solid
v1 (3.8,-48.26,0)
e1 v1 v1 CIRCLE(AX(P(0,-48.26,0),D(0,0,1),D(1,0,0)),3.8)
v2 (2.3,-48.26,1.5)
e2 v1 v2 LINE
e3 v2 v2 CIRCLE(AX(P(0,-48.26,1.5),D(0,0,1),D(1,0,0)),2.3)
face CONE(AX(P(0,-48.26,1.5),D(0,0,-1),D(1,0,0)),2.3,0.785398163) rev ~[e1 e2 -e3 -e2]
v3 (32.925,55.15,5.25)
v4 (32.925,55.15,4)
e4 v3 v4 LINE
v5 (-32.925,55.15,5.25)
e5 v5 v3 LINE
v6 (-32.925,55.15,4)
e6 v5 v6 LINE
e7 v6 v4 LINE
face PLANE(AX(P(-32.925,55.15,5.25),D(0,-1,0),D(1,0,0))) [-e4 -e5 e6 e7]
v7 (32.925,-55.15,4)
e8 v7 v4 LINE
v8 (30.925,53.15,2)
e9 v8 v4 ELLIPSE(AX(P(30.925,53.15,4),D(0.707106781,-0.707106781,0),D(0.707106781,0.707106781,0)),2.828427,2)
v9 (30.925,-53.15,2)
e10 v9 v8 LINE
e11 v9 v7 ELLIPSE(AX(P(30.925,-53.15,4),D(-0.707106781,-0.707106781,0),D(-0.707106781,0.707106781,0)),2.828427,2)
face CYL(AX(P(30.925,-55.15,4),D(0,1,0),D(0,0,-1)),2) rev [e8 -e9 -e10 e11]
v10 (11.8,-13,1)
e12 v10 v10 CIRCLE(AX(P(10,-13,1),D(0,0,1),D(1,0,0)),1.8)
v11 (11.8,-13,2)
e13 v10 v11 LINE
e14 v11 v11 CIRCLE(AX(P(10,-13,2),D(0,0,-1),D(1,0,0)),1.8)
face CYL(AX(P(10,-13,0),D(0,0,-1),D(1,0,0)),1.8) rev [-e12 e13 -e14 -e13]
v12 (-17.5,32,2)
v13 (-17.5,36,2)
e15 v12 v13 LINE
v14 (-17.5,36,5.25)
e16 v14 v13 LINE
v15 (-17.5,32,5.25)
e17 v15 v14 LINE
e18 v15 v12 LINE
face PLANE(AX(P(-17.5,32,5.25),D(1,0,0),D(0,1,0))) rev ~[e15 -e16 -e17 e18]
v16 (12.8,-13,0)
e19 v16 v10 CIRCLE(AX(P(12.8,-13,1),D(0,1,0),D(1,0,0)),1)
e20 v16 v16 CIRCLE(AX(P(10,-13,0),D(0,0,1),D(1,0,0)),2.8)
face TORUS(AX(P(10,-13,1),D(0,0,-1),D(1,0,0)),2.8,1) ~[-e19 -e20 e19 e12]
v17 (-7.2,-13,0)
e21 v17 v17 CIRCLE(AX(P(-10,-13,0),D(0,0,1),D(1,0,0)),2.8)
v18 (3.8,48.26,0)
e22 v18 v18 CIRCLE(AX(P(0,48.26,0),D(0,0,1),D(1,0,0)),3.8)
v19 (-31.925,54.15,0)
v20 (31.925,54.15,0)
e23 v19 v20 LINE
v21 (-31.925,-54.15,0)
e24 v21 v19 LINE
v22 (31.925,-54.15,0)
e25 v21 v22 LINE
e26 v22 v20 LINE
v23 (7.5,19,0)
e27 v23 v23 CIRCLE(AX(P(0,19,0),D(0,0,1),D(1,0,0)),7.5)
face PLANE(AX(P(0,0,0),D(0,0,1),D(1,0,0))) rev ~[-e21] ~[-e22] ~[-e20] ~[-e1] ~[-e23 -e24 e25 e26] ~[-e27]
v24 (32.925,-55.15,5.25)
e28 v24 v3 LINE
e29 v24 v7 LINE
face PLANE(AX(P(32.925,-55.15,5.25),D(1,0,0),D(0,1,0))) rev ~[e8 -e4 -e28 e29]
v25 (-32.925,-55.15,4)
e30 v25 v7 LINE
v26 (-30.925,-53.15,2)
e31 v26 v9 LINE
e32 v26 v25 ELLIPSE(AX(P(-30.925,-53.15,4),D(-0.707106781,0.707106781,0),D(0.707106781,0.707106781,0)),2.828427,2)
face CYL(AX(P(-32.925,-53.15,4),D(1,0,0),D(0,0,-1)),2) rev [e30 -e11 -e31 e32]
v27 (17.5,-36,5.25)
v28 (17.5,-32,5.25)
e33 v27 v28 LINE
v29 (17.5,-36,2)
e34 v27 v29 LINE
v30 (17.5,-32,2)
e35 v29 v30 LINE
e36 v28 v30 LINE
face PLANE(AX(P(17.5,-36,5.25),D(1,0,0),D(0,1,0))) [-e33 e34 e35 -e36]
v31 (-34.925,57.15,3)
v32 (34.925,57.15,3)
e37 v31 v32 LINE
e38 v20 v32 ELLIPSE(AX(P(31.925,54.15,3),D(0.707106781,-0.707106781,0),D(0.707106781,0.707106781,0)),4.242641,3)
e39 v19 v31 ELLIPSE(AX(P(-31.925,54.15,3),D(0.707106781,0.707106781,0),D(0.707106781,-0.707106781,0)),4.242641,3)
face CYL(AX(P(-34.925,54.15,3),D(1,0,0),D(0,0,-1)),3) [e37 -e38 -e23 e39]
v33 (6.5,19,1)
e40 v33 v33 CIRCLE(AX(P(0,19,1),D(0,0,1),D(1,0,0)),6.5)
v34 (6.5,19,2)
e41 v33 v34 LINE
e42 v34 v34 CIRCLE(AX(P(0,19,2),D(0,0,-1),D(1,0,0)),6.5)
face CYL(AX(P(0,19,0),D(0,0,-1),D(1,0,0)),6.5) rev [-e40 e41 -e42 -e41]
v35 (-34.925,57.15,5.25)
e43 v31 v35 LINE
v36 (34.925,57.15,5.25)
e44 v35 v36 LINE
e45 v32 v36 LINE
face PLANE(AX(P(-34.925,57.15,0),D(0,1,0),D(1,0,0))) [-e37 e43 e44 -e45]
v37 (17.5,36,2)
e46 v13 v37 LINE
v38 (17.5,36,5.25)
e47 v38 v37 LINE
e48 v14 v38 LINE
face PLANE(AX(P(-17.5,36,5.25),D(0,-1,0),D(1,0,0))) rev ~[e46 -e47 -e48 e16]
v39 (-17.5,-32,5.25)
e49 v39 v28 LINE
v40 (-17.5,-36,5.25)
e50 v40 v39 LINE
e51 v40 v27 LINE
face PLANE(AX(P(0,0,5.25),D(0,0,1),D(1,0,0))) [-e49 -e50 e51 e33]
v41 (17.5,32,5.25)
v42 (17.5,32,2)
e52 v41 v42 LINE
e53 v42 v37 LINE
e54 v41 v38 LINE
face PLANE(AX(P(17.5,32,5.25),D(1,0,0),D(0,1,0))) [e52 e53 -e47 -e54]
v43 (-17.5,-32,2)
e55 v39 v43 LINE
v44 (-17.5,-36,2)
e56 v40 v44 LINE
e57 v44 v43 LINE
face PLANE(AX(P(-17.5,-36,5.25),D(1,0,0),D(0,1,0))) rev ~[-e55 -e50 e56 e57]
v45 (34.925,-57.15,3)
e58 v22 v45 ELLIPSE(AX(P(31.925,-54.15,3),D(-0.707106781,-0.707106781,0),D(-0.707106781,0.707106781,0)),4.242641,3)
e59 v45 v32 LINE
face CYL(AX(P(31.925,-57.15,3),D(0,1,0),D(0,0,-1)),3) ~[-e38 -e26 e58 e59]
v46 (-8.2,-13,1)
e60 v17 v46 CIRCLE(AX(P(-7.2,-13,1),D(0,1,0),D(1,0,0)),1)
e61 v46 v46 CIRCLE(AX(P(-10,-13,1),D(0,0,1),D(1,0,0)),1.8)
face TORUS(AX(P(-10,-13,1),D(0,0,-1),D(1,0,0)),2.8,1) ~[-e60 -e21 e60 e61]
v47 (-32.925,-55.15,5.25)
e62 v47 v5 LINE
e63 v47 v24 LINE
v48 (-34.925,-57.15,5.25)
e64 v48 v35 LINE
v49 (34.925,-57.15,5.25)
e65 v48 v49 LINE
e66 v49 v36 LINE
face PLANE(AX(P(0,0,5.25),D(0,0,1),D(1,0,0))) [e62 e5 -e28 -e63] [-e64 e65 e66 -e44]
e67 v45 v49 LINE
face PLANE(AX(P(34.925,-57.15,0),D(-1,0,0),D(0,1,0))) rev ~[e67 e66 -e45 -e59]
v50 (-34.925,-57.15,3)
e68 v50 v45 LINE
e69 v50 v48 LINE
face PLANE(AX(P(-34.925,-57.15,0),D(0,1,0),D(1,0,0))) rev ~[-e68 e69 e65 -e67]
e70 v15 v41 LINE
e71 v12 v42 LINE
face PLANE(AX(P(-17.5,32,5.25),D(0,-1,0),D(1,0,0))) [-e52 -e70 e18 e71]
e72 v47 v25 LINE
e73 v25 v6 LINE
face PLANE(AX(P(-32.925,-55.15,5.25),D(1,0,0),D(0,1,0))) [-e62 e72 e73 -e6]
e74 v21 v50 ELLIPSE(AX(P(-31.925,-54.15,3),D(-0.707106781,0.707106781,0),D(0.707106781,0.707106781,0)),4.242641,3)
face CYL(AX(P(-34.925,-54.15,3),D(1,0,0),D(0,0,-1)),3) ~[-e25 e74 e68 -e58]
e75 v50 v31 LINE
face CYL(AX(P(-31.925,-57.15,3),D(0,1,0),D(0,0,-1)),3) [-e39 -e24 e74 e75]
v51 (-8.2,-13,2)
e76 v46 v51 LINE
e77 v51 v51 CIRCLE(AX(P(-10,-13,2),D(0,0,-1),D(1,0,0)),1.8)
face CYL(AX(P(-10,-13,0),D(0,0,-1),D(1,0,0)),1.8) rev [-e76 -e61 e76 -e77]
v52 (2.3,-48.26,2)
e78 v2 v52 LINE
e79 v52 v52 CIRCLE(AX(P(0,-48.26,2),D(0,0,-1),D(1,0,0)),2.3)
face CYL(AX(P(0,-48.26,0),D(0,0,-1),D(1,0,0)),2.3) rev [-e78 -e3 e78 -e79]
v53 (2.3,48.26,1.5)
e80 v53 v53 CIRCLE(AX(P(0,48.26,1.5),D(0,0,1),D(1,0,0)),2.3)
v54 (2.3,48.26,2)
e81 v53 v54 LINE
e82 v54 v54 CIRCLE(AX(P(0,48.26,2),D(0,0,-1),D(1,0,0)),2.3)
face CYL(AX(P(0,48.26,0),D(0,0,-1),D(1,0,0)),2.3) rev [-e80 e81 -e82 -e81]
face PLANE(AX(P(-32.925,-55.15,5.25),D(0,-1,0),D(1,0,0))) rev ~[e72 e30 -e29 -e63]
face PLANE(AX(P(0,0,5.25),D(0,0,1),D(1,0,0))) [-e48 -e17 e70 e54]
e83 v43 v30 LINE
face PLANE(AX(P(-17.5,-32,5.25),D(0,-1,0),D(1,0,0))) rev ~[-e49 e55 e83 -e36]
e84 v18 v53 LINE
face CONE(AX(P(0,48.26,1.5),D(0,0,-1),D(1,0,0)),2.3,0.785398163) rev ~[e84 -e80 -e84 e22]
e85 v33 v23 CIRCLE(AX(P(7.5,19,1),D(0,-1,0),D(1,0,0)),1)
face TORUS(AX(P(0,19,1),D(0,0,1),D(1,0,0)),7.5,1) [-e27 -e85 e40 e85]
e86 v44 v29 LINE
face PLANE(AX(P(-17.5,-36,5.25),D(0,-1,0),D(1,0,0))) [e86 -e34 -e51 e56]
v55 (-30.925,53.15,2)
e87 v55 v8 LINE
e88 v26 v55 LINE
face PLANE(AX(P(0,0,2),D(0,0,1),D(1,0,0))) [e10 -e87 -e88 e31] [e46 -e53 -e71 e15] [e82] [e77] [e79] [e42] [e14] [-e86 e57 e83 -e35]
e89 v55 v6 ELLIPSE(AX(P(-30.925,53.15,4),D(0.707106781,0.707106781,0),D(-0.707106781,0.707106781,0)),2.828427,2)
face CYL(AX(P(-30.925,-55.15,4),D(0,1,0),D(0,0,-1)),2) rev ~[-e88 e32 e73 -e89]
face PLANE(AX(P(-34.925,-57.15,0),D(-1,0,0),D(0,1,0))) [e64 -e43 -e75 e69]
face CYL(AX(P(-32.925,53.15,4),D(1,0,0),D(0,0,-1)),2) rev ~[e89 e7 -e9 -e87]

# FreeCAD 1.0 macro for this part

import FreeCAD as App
import Part
import Sketcher
from FreeCAD import Vector
Q = App.Units.Quantity


def edges_at(feature, points):
    """Names of the edges that pass closest to the given points."""
    edges = feature.Shape.Edges
    near = lambda p: min(range(len(edges)), key=lambda i: edges[i].distToShape(Part.Vertex(*p))[0])
    return sorted({f"Edge{near(p) + 1}" for p in points})


def add_polygon(sketch, points):
    """Adds a closed chain of lines whose ends are joined by coincident constraints."""
    first, n = sketch.GeometryCount, len(points)
    for a, b in zip(points, points[1:] + points[:1]):
        sketch.addGeometry(Part.LineSegment(App.Vector(*a, 0), App.Vector(*b, 0)), False)
    for i in range(n):
        sketch.addConstraint(Sketcher.Constraint("Coincident", first + i, 2, first + (i + 1) % n, 1))

doc = App.newDocument("Part")
params = doc.addObject("Spreadsheet::Sheet", "Params")
for row, (alias, value) in enumerate([
    ("sketch1_diameter", "13 mm"),
    ("sketch1_diameter2", "3.6 mm"),
    ("sketch1_diameter3", "4.6 mm"),
    ("sketch1_height", "114.3 mm"),
    ("sketch1_width", "69.85 mm"),
    ("pad1_length", "5.25 mm"),
    ("fillet_radius", "1 mm"),
    ("chamfer_size", "1.5 mm"),
    ("fillet2_radius", "1 mm"),
    ("fillet3_radius", "3 mm"),
    ("sketch2_width", "35 mm"),
    ("sketch2_height", "4 mm"),
    ("sketch2_height2", "110.3 mm"),
    ("sketch2_width2", "65.85 mm"),
    ("pocket1_length", "3.25 mm"),
    ("fillet4_radius", "2 mm"),
], start=1):
    params.set(f"A{row}", alias)
    params.set(f"B{row}", "=" + value)
    params.setAlias(f"B{row}", alias)

body = doc.addObject("PartDesign::Body", "Body")

sketch1 = body.newObject("Sketcher::SketchObject", "Sketch")
sketch1.AttachmentSupport = (doc.getObject("XY_Plane"), [""])
sketch1.MapMode = "FlatFace"
add_polygon(sketch1, [(-34.9, 57.1), (-34.9, -57.1), (34.9, -57.1), (34.9, 57.1)])
sketch1.addGeometry(Part.Circle(Vector(-10, -13, 0), Vector(0, 0, 1), 1.8), False)
sketch1.addGeometry(Part.Circle(Vector(0, -48.3, 0), Vector(0, 0, 1), 2.3), False)
sketch1.addGeometry(Part.Circle(Vector(10, -13, 0), Vector(0, 0, 1), 1.8), False)
sketch1.addGeometry(Part.Circle(Vector(0, 19, 0), Vector(0, 0, 1), 6.5), False)
sketch1.addGeometry(Part.Circle(Vector(0, 48.3, 0), Vector(0, 0, 1), 2.3), False)
sketch1.addConstraint(Sketcher.Constraint("Vertical", 0))
sketch1.addConstraint(Sketcher.Constraint("Horizontal", 1))
sketch1.addConstraint(Sketcher.Constraint("Vertical", 2))
sketch1.addConstraint(Sketcher.Constraint("Horizontal", 3))
sketch1.addConstraint(Sketcher.Constraint("Equal", 4, 6))
sketch1.addConstraint(Sketcher.Constraint("Equal", 5, 8))
sketch1.addConstraint(Sketcher.Constraint("Symmetric", 5, 3, 8, 3, -1, 1))
sketch1.addConstraint(Sketcher.Constraint("Symmetric", 0, 2, 2, 2, -1, 1))
sketch1.addConstraint(Sketcher.Constraint("Symmetric", 4, 3, 6, 3, -2))
sketch1.addConstraint(Sketcher.Constraint("PointOnObject", 5, 3, -2))
sketch1.addConstraint(Sketcher.Constraint("PointOnObject", 7, 3, -2))
sketch1.addConstraint(Sketcher.Constraint("Diameter", 7, Q("13 mm")))
sketch1.addConstraint(Sketcher.Constraint("Diameter", 4, Q("3.6 mm")))
sketch1.addConstraint(Sketcher.Constraint("Diameter", 5, Q("4.6 mm")))
sketch1.addConstraint(Sketcher.Constraint("DistanceY", 0, 2, 0, 1, Q("114.3 mm")))
sketch1.addConstraint(Sketcher.Constraint("DistanceX", 4, 3, -1, 1, Q("10 mm")))
sketch1.addConstraint(Sketcher.Constraint("DistanceY", 4, 3, -1, 1, Q("13 mm")))
sketch1.addConstraint(Sketcher.Constraint("DistanceY", -1, 1, 7, 3, Q("19 mm")))
sketch1.addConstraint(Sketcher.Constraint("DistanceX", 1, 1, 1, 2, Q("69.85 mm")))
sketch1.addConstraint(Sketcher.Constraint("DistanceY", 5, 3, -1, 1, Q("48.26 mm")))
sketch1.setExpression("Constraints[15]", "Params.sketch1_diameter")
sketch1.setExpression("Constraints[16]", "Params.sketch1_diameter2")
sketch1.setExpression("Constraints[17]", "Params.sketch1_diameter3")
sketch1.setExpression("Constraints[18]", "Params.sketch1_height")
sketch1.setExpression("Constraints[22]", "Params.sketch1_width")
pad1 = body.newObject("PartDesign::Pad", "Pad")
pad1.Profile = sketch1
pad1.setExpression("Length", "Params.pad1_length")
doc.recompute()

fillet = body.newObject("PartDesign::Fillet", "Fillet")
fillet.Base = (pad1, edges_at(pad1, [(-6.5, 19, 0)]))
fillet.setExpression("Radius", "Params.fillet_radius")
doc.recompute()

chamfer = body.newObject("PartDesign::Chamfer", "Chamfer")
chamfer.Base = (fillet, edges_at(fillet, [(-2.3, 48.26, 0), (-2.3, -48.26, 0)]))
chamfer.setExpression("Size", "Params.chamfer_size")
doc.recompute()

fillet2 = body.newObject("PartDesign::Fillet", "Fillet001")
fillet2.Base = (chamfer, edges_at(chamfer, [(-11.8, -13, 0), (8.2, -13, 0)]))
fillet2.setExpression("Radius", "Params.fillet2_radius")
doc.recompute()

fillet3 = body.newObject("PartDesign::Fillet", "Fillet002")
fillet3.Base = (fillet2, edges_at(fillet2, [
    (0, 57.15, 0),
    (-34.925, 0, 0),
    (34.925, 0, 0),
    (0, -57.15, 0),
]))
fillet3.setExpression("Radius", "Params.fillet3_radius")

sketch2 = body.newObject("Sketcher::SketchObject", "Sketch001")
sketch2.AttachmentSupport = (doc.getObject("XY_Plane"), [""])
sketch2.MapMode = "FlatFace"
sketch2.AttachmentOffset = App.Placement(Vector(0, 0, 5.25), App.Rotation())
add_polygon(sketch2, [(-32.9, 55.1), (-32.9, -55.1), (32.9, -55.1), (32.9, 55.1)])
add_polygon(sketch2, [(17.5, -36), (-17.5, -36), (-17.5, -32), (17.5, -32)])
add_polygon(sketch2, [(17.5, 32), (-17.5, 32), (-17.5, 36), (17.5, 36)])
sketch2.addConstraint(Sketcher.Constraint("Vertical", 0))
sketch2.addConstraint(Sketcher.Constraint("Horizontal", 1))
sketch2.addConstraint(Sketcher.Constraint("Vertical", 2))
sketch2.addConstraint(Sketcher.Constraint("Horizontal", 3))
sketch2.addConstraint(Sketcher.Constraint("Horizontal", 4))
sketch2.addConstraint(Sketcher.Constraint("Vertical", 5))
sketch2.addConstraint(Sketcher.Constraint("Horizontal", 6))
sketch2.addConstraint(Sketcher.Constraint("Vertical", 7))
sketch2.addConstraint(Sketcher.Constraint("Horizontal", 8))
sketch2.addConstraint(Sketcher.Constraint("Vertical", 9))
sketch2.addConstraint(Sketcher.Constraint("Horizontal", 10))
sketch2.addConstraint(Sketcher.Constraint("Vertical", 11))
sketch2.addConstraint(Sketcher.Constraint("Symmetric", 0, 2, 2, 2, -1, 1))
sketch2.addConstraint(Sketcher.Constraint("Symmetric", 6, 2, 8, 2, -1, 1))
sketch2.addConstraint(Sketcher.Constraint("Symmetric", 4, 2, 10, 2, -1, 1))
sketch2.addConstraint(Sketcher.Constraint("Vertical", 5, 2, 8, 2))
sketch2.addConstraint(Sketcher.Constraint("DistanceX", 4, 2, 4, 1, Q("35 mm")))
sketch2.addConstraint(Sketcher.Constraint("DistanceY", 5, 1, 5, 2, Q("4 mm")))
sketch2.addConstraint(Sketcher.Constraint("DistanceY", 0, 2, 0, 1, Q("110.3 mm")))
sketch2.addConstraint(Sketcher.Constraint("DistanceY", 4, 2, -1, 1, Q("36 mm")))
sketch2.addConstraint(Sketcher.Constraint("DistanceX", 1, 1, 1, 2, Q("65.85 mm")))
sketch2.setExpression("Constraints[28]", "Params.sketch2_width")
sketch2.setExpression("Constraints[29]", "Params.sketch2_height")
sketch2.setExpression("Constraints[30]", "Params.sketch2_height2")
sketch2.setExpression("Constraints[32]", "Params.sketch2_width2")
pocket1 = body.newObject("PartDesign::Pocket", "Pocket")
pocket1.Profile = sketch2
pocket1.setExpression("Length", "Params.pocket1_length")
doc.recompute()

fillet4 = body.newObject("PartDesign::Fillet", "Fillet003")
fillet4.Base = (pocket1, edges_at(pocket1, [
    (-32.925, 0, 2),
    (0, 55.15, 2),
    (32.925, 0, 2),
    (0, -55.15, 2),
]))
fillet4.setExpression("Radius", "Params.fillet4_radius")

doc.recompute()
